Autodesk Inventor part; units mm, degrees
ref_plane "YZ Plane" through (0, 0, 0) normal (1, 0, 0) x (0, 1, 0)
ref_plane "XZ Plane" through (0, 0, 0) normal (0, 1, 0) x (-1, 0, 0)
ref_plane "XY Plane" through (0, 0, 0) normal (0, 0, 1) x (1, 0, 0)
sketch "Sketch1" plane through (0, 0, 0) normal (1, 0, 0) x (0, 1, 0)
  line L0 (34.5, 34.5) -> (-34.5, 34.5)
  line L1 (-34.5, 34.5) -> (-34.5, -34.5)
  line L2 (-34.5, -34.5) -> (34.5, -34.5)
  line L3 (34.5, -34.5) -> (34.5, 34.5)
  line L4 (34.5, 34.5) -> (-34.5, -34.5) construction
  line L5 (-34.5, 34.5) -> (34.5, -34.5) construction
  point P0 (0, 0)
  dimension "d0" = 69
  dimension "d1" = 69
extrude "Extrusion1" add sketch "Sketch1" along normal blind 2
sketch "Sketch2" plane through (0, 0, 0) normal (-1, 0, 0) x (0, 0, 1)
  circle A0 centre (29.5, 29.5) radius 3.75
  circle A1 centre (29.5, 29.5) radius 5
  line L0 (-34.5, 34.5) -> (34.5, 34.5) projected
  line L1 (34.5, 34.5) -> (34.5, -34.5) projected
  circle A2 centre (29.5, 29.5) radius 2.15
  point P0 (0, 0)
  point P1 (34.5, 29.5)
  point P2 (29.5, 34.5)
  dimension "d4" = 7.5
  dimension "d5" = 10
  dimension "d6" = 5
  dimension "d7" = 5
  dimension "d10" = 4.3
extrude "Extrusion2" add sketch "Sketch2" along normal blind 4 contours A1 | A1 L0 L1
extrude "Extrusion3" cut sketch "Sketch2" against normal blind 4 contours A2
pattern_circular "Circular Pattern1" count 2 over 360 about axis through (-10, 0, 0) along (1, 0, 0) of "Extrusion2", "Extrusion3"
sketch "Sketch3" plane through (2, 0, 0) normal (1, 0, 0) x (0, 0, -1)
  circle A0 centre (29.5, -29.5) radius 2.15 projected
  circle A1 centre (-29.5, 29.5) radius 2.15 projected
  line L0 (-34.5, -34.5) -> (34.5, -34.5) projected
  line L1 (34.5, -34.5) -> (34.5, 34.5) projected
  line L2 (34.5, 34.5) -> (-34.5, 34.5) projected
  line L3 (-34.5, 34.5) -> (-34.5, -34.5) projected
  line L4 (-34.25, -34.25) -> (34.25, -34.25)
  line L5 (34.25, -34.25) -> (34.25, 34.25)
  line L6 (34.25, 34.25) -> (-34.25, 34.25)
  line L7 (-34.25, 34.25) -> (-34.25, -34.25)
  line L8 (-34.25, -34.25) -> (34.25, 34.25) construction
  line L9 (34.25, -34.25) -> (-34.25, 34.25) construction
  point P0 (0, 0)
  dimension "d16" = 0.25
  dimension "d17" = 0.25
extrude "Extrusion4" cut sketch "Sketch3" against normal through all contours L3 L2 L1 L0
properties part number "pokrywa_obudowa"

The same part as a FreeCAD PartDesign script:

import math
import FreeCAD as App
import Part
import Sketcher

V = App.Vector

doc = App.newDocument("Part")
params = doc.addObject("Spreadsheet::Sheet", "Params")
for row, (alias, value) in enumerate([
    ("sketch1_width", "69 mm"),
    ("pad1_length", "2 mm"),
    ("sketch2_radius", "5 mm"),
    ("sketch2_diameter", "7.5 mm"),
    ("pad2_length", "4 mm"),
    ("sketch3_diameter", "4.3 mm"),
    ("pocket1_length", "4 mm"),
    ("sketch4_width", "69 mm"),
], start=1):
    params.set(f"A{row}", alias)
    params.set(f"B{row}", "=" + value)
    params.setAlias(f"B{row}", alias)

body = doc.addObject("PartDesign::Body", "Body")

# Sketch on YZ plane
sketch1 = doc.addObject("Sketcher::SketchObject", "Sketch")
body.addObject(sketch1)
sketch1.AttachmentSupport = (doc.YZ_Plane, [""])
sketch1.MapMode = "FlatFace"
sketch1.addGeometry([
    Part.LineSegment(V(34.5, -34.5, 0), V(34.5, 34.5, 0)),
    Part.LineSegment(V(34.5, 34.5, 0), V(-34.5, 34.5, 0)),
    Part.LineSegment(V(-34.5, 34.5, 0), V(-34.5, -34.5, 0)),
    Part.LineSegment(V(-34.5, -34.5, 0), V(34.5, -34.5, 0)),
], False)
sketch1.addConstraint([
    Sketcher.Constraint("Coincident", 0, 2, 1, 1),
    Sketcher.Constraint("Coincident", 1, 2, 2, 1),
    Sketcher.Constraint("Coincident", 2, 2, 3, 1),
    Sketcher.Constraint("Coincident", 3, 2, 0, 1),
    Sketcher.Constraint("Vertical", 0),
    Sketcher.Constraint("Horizontal", 1),
    Sketcher.Constraint("Vertical", 2),
    Sketcher.Constraint("Horizontal", 3),
    Sketcher.Constraint("Symmetric", 0, 2, 2, 2, -1, 1),
    Sketcher.Constraint("Equal", 3, 0),
    Sketcher.Constraint("DistanceX", 1, 2, 1, 1, 69.0),
])
sketch1.setExpression("Constraints[10]", "Params.sketch1_width")
pad1 = doc.addObject("PartDesign::Pad", "Pad")
body.addObject(pad1)
pad1.Profile = sketch1
pad1.setExpression("Length", "Params.pad1_length")

# Sketch on YZ plane
sketch2 = doc.addObject("Sketcher::SketchObject", "Sketch001")
body.addObject(sketch2)
sketch2.AttachmentSupport = (doc.YZ_Plane, [""])
sketch2.MapMode = "FlatFace"
sketch2.addGeometry([
    Part.ArcOfCircle(Part.Circle(V(29.5, 29.5, 0), V(0, 0, 1), 5), math.radians(90), math.radians(360)),
    Part.LineSegment(V(29.5, 34.5, 0), V(34.5, 34.5, 0)),
    Part.LineSegment(V(34.5, 34.5, 0), V(34.5, 29.5, 0)),
    Part.Circle(V(29.5, 29.5, 0), V(0, 0, 1), 3.75),
], False)
sketch2.addConstraint([
    Sketcher.Constraint("Tangent", 0, 1, 1, 1),
    Sketcher.Constraint("Coincident", 1, 2, 2, 1),
    Sketcher.Constraint("Tangent", 2, 2, 0, 2),
    Sketcher.Constraint("Horizontal", 1),
    Sketcher.Constraint("Vertical", 2),
    Sketcher.Constraint("Coincident", 3, 3, 0, 3),
    Sketcher.Constraint("Radius", 0, 5.0),
    Sketcher.Constraint("Diameter", 3, 7.5),
    Sketcher.Constraint("DistanceX", -1, 1, 0, 3, 29.5),
    Sketcher.Constraint("DistanceY", -1, 1, 0, 3, 29.5),
])
sketch2.setExpression("Constraints[6]", "Params.sketch2_radius")
sketch2.setExpression("Constraints[7]", "Params.sketch2_diameter")
pad2 = doc.addObject("PartDesign::Pad", "Pad001")
body.addObject(pad2)
pad2.Profile = sketch2
pad2.setExpression("Length", "Params.pad2_length")
pad2.Reversed = True

# Sketch on YZ plane
sketch3 = doc.addObject("Sketcher::SketchObject", "Sketch002")
body.addObject(sketch3)
sketch3.AttachmentSupport = (doc.YZ_Plane, [""])
sketch3.MapMode = "FlatFace"
sketch3.addGeometry(Part.Circle(V(29.5, 29.5, 0), V(0, 0, 1), 2.15), False)
sketch3.addConstraint([
    Sketcher.Constraint("Diameter", 0, 4.3),
    Sketcher.Constraint("DistanceX", -1, 1, 0, 3, 29.5),
    Sketcher.Constraint("DistanceY", -1, 1, 0, 3, 29.5),
])
sketch3.setExpression("Constraints[0]", "Params.sketch3_diameter")
pocket1 = doc.addObject("PartDesign::Pocket", "Pocket")
body.addObject(pocket1)
pocket1.Profile = sketch3
pocket1.setExpression("Length", "Params.pocket1_length")
pocket1.Reversed = True
doc.recompute()

polarpattern = doc.addObject("PartDesign::PolarPattern", "PolarPattern")
body.addObject(polarpattern)
polarpattern.Originals = [pad2, pocket1]
polarpattern.Axis = (doc.X_Axis, [""])
polarpattern.Angle = 360
polarpattern.Occurrences = 2
body.Tip = polarpattern

# Sketch on YZ plane
sketch4 = doc.addObject("Sketcher::SketchObject", "Sketch003")
body.addObject(sketch4)
sketch4.AttachmentSupport = (doc.YZ_Plane, [""])
sketch4.MapMode = "FlatFace"
sketch4.AttachmentOffset = App.Placement(V(0, 0, 2), App.Rotation())
sketch4.addGeometry([
    Part.LineSegment(V(34.5, 34.5, 0), V(-34.5, 34.5, 0)),  # 0
    Part.LineSegment(V(-34.5, 34.5, 0), V(-34.5, -34.5, 0)),  # 1
    Part.LineSegment(V(-34.5, -34.5, 0), V(34.5, -34.5, 0)),  # 2
    Part.LineSegment(V(34.5, -34.5, 0), V(34.5, 34.5, 0)),  # 3
    Part.LineSegment(V(-34.25, -34.25, 0), V(-34.25, 34.25, 0)),  # 4
    Part.LineSegment(V(-34.25, 34.25, 0), V(34.25, 34.25, 0)),  # 5
    Part.LineSegment(V(34.25, 34.25, 0), V(34.25, -34.25, 0)),  # 6
    Part.LineSegment(V(34.25, -34.25, 0), V(-34.25, -34.25, 0)),  # 7
], False)
sketch4.addConstraint([
    Sketcher.Constraint("Coincident", 0, 2, 1, 1),
    Sketcher.Constraint("Coincident", 1, 2, 2, 1),
    Sketcher.Constraint("Coincident", 2, 2, 3, 1),
    Sketcher.Constraint("Coincident", 3, 2, 0, 1),
    Sketcher.Constraint("Coincident", 4, 2, 5, 1),
    Sketcher.Constraint("Coincident", 5, 2, 6, 1),
    Sketcher.Constraint("Coincident", 6, 2, 7, 1),
    Sketcher.Constraint("Coincident", 7, 2, 4, 1),
    Sketcher.Constraint("Horizontal", 0),
    Sketcher.Constraint("Vertical", 1),
    Sketcher.Constraint("Horizontal", 2),
    Sketcher.Constraint("Vertical", 3),
    Sketcher.Constraint("Vertical", 4),
    Sketcher.Constraint("Horizontal", 5),
    Sketcher.Constraint("Vertical", 6),
    Sketcher.Constraint("Horizontal", 7),
    Sketcher.Constraint("Symmetric", 0, 2, 2, 2, -1, 1),
    Sketcher.Constraint("Symmetric", 4, 2, 6, 2, -1, 1),
    Sketcher.Constraint("Equal", 2, 1),
    Sketcher.Constraint("Equal", 7, 4),
    Sketcher.Constraint("DistanceX", 0, 2, 0, 1, 69.0),
    Sketcher.Constraint("DistanceX", 0, 2, 4, 2, 0.25),
])
sketch4.setExpression("Constraints[20]", "Params.sketch4_width")
pocket2 = doc.addObject("PartDesign::Pocket", "Pocket001")
body.addObject(pocket2)
pocket2.Profile = sketch4
pocket2.Type = "ThroughAll"

doc.recompute()
